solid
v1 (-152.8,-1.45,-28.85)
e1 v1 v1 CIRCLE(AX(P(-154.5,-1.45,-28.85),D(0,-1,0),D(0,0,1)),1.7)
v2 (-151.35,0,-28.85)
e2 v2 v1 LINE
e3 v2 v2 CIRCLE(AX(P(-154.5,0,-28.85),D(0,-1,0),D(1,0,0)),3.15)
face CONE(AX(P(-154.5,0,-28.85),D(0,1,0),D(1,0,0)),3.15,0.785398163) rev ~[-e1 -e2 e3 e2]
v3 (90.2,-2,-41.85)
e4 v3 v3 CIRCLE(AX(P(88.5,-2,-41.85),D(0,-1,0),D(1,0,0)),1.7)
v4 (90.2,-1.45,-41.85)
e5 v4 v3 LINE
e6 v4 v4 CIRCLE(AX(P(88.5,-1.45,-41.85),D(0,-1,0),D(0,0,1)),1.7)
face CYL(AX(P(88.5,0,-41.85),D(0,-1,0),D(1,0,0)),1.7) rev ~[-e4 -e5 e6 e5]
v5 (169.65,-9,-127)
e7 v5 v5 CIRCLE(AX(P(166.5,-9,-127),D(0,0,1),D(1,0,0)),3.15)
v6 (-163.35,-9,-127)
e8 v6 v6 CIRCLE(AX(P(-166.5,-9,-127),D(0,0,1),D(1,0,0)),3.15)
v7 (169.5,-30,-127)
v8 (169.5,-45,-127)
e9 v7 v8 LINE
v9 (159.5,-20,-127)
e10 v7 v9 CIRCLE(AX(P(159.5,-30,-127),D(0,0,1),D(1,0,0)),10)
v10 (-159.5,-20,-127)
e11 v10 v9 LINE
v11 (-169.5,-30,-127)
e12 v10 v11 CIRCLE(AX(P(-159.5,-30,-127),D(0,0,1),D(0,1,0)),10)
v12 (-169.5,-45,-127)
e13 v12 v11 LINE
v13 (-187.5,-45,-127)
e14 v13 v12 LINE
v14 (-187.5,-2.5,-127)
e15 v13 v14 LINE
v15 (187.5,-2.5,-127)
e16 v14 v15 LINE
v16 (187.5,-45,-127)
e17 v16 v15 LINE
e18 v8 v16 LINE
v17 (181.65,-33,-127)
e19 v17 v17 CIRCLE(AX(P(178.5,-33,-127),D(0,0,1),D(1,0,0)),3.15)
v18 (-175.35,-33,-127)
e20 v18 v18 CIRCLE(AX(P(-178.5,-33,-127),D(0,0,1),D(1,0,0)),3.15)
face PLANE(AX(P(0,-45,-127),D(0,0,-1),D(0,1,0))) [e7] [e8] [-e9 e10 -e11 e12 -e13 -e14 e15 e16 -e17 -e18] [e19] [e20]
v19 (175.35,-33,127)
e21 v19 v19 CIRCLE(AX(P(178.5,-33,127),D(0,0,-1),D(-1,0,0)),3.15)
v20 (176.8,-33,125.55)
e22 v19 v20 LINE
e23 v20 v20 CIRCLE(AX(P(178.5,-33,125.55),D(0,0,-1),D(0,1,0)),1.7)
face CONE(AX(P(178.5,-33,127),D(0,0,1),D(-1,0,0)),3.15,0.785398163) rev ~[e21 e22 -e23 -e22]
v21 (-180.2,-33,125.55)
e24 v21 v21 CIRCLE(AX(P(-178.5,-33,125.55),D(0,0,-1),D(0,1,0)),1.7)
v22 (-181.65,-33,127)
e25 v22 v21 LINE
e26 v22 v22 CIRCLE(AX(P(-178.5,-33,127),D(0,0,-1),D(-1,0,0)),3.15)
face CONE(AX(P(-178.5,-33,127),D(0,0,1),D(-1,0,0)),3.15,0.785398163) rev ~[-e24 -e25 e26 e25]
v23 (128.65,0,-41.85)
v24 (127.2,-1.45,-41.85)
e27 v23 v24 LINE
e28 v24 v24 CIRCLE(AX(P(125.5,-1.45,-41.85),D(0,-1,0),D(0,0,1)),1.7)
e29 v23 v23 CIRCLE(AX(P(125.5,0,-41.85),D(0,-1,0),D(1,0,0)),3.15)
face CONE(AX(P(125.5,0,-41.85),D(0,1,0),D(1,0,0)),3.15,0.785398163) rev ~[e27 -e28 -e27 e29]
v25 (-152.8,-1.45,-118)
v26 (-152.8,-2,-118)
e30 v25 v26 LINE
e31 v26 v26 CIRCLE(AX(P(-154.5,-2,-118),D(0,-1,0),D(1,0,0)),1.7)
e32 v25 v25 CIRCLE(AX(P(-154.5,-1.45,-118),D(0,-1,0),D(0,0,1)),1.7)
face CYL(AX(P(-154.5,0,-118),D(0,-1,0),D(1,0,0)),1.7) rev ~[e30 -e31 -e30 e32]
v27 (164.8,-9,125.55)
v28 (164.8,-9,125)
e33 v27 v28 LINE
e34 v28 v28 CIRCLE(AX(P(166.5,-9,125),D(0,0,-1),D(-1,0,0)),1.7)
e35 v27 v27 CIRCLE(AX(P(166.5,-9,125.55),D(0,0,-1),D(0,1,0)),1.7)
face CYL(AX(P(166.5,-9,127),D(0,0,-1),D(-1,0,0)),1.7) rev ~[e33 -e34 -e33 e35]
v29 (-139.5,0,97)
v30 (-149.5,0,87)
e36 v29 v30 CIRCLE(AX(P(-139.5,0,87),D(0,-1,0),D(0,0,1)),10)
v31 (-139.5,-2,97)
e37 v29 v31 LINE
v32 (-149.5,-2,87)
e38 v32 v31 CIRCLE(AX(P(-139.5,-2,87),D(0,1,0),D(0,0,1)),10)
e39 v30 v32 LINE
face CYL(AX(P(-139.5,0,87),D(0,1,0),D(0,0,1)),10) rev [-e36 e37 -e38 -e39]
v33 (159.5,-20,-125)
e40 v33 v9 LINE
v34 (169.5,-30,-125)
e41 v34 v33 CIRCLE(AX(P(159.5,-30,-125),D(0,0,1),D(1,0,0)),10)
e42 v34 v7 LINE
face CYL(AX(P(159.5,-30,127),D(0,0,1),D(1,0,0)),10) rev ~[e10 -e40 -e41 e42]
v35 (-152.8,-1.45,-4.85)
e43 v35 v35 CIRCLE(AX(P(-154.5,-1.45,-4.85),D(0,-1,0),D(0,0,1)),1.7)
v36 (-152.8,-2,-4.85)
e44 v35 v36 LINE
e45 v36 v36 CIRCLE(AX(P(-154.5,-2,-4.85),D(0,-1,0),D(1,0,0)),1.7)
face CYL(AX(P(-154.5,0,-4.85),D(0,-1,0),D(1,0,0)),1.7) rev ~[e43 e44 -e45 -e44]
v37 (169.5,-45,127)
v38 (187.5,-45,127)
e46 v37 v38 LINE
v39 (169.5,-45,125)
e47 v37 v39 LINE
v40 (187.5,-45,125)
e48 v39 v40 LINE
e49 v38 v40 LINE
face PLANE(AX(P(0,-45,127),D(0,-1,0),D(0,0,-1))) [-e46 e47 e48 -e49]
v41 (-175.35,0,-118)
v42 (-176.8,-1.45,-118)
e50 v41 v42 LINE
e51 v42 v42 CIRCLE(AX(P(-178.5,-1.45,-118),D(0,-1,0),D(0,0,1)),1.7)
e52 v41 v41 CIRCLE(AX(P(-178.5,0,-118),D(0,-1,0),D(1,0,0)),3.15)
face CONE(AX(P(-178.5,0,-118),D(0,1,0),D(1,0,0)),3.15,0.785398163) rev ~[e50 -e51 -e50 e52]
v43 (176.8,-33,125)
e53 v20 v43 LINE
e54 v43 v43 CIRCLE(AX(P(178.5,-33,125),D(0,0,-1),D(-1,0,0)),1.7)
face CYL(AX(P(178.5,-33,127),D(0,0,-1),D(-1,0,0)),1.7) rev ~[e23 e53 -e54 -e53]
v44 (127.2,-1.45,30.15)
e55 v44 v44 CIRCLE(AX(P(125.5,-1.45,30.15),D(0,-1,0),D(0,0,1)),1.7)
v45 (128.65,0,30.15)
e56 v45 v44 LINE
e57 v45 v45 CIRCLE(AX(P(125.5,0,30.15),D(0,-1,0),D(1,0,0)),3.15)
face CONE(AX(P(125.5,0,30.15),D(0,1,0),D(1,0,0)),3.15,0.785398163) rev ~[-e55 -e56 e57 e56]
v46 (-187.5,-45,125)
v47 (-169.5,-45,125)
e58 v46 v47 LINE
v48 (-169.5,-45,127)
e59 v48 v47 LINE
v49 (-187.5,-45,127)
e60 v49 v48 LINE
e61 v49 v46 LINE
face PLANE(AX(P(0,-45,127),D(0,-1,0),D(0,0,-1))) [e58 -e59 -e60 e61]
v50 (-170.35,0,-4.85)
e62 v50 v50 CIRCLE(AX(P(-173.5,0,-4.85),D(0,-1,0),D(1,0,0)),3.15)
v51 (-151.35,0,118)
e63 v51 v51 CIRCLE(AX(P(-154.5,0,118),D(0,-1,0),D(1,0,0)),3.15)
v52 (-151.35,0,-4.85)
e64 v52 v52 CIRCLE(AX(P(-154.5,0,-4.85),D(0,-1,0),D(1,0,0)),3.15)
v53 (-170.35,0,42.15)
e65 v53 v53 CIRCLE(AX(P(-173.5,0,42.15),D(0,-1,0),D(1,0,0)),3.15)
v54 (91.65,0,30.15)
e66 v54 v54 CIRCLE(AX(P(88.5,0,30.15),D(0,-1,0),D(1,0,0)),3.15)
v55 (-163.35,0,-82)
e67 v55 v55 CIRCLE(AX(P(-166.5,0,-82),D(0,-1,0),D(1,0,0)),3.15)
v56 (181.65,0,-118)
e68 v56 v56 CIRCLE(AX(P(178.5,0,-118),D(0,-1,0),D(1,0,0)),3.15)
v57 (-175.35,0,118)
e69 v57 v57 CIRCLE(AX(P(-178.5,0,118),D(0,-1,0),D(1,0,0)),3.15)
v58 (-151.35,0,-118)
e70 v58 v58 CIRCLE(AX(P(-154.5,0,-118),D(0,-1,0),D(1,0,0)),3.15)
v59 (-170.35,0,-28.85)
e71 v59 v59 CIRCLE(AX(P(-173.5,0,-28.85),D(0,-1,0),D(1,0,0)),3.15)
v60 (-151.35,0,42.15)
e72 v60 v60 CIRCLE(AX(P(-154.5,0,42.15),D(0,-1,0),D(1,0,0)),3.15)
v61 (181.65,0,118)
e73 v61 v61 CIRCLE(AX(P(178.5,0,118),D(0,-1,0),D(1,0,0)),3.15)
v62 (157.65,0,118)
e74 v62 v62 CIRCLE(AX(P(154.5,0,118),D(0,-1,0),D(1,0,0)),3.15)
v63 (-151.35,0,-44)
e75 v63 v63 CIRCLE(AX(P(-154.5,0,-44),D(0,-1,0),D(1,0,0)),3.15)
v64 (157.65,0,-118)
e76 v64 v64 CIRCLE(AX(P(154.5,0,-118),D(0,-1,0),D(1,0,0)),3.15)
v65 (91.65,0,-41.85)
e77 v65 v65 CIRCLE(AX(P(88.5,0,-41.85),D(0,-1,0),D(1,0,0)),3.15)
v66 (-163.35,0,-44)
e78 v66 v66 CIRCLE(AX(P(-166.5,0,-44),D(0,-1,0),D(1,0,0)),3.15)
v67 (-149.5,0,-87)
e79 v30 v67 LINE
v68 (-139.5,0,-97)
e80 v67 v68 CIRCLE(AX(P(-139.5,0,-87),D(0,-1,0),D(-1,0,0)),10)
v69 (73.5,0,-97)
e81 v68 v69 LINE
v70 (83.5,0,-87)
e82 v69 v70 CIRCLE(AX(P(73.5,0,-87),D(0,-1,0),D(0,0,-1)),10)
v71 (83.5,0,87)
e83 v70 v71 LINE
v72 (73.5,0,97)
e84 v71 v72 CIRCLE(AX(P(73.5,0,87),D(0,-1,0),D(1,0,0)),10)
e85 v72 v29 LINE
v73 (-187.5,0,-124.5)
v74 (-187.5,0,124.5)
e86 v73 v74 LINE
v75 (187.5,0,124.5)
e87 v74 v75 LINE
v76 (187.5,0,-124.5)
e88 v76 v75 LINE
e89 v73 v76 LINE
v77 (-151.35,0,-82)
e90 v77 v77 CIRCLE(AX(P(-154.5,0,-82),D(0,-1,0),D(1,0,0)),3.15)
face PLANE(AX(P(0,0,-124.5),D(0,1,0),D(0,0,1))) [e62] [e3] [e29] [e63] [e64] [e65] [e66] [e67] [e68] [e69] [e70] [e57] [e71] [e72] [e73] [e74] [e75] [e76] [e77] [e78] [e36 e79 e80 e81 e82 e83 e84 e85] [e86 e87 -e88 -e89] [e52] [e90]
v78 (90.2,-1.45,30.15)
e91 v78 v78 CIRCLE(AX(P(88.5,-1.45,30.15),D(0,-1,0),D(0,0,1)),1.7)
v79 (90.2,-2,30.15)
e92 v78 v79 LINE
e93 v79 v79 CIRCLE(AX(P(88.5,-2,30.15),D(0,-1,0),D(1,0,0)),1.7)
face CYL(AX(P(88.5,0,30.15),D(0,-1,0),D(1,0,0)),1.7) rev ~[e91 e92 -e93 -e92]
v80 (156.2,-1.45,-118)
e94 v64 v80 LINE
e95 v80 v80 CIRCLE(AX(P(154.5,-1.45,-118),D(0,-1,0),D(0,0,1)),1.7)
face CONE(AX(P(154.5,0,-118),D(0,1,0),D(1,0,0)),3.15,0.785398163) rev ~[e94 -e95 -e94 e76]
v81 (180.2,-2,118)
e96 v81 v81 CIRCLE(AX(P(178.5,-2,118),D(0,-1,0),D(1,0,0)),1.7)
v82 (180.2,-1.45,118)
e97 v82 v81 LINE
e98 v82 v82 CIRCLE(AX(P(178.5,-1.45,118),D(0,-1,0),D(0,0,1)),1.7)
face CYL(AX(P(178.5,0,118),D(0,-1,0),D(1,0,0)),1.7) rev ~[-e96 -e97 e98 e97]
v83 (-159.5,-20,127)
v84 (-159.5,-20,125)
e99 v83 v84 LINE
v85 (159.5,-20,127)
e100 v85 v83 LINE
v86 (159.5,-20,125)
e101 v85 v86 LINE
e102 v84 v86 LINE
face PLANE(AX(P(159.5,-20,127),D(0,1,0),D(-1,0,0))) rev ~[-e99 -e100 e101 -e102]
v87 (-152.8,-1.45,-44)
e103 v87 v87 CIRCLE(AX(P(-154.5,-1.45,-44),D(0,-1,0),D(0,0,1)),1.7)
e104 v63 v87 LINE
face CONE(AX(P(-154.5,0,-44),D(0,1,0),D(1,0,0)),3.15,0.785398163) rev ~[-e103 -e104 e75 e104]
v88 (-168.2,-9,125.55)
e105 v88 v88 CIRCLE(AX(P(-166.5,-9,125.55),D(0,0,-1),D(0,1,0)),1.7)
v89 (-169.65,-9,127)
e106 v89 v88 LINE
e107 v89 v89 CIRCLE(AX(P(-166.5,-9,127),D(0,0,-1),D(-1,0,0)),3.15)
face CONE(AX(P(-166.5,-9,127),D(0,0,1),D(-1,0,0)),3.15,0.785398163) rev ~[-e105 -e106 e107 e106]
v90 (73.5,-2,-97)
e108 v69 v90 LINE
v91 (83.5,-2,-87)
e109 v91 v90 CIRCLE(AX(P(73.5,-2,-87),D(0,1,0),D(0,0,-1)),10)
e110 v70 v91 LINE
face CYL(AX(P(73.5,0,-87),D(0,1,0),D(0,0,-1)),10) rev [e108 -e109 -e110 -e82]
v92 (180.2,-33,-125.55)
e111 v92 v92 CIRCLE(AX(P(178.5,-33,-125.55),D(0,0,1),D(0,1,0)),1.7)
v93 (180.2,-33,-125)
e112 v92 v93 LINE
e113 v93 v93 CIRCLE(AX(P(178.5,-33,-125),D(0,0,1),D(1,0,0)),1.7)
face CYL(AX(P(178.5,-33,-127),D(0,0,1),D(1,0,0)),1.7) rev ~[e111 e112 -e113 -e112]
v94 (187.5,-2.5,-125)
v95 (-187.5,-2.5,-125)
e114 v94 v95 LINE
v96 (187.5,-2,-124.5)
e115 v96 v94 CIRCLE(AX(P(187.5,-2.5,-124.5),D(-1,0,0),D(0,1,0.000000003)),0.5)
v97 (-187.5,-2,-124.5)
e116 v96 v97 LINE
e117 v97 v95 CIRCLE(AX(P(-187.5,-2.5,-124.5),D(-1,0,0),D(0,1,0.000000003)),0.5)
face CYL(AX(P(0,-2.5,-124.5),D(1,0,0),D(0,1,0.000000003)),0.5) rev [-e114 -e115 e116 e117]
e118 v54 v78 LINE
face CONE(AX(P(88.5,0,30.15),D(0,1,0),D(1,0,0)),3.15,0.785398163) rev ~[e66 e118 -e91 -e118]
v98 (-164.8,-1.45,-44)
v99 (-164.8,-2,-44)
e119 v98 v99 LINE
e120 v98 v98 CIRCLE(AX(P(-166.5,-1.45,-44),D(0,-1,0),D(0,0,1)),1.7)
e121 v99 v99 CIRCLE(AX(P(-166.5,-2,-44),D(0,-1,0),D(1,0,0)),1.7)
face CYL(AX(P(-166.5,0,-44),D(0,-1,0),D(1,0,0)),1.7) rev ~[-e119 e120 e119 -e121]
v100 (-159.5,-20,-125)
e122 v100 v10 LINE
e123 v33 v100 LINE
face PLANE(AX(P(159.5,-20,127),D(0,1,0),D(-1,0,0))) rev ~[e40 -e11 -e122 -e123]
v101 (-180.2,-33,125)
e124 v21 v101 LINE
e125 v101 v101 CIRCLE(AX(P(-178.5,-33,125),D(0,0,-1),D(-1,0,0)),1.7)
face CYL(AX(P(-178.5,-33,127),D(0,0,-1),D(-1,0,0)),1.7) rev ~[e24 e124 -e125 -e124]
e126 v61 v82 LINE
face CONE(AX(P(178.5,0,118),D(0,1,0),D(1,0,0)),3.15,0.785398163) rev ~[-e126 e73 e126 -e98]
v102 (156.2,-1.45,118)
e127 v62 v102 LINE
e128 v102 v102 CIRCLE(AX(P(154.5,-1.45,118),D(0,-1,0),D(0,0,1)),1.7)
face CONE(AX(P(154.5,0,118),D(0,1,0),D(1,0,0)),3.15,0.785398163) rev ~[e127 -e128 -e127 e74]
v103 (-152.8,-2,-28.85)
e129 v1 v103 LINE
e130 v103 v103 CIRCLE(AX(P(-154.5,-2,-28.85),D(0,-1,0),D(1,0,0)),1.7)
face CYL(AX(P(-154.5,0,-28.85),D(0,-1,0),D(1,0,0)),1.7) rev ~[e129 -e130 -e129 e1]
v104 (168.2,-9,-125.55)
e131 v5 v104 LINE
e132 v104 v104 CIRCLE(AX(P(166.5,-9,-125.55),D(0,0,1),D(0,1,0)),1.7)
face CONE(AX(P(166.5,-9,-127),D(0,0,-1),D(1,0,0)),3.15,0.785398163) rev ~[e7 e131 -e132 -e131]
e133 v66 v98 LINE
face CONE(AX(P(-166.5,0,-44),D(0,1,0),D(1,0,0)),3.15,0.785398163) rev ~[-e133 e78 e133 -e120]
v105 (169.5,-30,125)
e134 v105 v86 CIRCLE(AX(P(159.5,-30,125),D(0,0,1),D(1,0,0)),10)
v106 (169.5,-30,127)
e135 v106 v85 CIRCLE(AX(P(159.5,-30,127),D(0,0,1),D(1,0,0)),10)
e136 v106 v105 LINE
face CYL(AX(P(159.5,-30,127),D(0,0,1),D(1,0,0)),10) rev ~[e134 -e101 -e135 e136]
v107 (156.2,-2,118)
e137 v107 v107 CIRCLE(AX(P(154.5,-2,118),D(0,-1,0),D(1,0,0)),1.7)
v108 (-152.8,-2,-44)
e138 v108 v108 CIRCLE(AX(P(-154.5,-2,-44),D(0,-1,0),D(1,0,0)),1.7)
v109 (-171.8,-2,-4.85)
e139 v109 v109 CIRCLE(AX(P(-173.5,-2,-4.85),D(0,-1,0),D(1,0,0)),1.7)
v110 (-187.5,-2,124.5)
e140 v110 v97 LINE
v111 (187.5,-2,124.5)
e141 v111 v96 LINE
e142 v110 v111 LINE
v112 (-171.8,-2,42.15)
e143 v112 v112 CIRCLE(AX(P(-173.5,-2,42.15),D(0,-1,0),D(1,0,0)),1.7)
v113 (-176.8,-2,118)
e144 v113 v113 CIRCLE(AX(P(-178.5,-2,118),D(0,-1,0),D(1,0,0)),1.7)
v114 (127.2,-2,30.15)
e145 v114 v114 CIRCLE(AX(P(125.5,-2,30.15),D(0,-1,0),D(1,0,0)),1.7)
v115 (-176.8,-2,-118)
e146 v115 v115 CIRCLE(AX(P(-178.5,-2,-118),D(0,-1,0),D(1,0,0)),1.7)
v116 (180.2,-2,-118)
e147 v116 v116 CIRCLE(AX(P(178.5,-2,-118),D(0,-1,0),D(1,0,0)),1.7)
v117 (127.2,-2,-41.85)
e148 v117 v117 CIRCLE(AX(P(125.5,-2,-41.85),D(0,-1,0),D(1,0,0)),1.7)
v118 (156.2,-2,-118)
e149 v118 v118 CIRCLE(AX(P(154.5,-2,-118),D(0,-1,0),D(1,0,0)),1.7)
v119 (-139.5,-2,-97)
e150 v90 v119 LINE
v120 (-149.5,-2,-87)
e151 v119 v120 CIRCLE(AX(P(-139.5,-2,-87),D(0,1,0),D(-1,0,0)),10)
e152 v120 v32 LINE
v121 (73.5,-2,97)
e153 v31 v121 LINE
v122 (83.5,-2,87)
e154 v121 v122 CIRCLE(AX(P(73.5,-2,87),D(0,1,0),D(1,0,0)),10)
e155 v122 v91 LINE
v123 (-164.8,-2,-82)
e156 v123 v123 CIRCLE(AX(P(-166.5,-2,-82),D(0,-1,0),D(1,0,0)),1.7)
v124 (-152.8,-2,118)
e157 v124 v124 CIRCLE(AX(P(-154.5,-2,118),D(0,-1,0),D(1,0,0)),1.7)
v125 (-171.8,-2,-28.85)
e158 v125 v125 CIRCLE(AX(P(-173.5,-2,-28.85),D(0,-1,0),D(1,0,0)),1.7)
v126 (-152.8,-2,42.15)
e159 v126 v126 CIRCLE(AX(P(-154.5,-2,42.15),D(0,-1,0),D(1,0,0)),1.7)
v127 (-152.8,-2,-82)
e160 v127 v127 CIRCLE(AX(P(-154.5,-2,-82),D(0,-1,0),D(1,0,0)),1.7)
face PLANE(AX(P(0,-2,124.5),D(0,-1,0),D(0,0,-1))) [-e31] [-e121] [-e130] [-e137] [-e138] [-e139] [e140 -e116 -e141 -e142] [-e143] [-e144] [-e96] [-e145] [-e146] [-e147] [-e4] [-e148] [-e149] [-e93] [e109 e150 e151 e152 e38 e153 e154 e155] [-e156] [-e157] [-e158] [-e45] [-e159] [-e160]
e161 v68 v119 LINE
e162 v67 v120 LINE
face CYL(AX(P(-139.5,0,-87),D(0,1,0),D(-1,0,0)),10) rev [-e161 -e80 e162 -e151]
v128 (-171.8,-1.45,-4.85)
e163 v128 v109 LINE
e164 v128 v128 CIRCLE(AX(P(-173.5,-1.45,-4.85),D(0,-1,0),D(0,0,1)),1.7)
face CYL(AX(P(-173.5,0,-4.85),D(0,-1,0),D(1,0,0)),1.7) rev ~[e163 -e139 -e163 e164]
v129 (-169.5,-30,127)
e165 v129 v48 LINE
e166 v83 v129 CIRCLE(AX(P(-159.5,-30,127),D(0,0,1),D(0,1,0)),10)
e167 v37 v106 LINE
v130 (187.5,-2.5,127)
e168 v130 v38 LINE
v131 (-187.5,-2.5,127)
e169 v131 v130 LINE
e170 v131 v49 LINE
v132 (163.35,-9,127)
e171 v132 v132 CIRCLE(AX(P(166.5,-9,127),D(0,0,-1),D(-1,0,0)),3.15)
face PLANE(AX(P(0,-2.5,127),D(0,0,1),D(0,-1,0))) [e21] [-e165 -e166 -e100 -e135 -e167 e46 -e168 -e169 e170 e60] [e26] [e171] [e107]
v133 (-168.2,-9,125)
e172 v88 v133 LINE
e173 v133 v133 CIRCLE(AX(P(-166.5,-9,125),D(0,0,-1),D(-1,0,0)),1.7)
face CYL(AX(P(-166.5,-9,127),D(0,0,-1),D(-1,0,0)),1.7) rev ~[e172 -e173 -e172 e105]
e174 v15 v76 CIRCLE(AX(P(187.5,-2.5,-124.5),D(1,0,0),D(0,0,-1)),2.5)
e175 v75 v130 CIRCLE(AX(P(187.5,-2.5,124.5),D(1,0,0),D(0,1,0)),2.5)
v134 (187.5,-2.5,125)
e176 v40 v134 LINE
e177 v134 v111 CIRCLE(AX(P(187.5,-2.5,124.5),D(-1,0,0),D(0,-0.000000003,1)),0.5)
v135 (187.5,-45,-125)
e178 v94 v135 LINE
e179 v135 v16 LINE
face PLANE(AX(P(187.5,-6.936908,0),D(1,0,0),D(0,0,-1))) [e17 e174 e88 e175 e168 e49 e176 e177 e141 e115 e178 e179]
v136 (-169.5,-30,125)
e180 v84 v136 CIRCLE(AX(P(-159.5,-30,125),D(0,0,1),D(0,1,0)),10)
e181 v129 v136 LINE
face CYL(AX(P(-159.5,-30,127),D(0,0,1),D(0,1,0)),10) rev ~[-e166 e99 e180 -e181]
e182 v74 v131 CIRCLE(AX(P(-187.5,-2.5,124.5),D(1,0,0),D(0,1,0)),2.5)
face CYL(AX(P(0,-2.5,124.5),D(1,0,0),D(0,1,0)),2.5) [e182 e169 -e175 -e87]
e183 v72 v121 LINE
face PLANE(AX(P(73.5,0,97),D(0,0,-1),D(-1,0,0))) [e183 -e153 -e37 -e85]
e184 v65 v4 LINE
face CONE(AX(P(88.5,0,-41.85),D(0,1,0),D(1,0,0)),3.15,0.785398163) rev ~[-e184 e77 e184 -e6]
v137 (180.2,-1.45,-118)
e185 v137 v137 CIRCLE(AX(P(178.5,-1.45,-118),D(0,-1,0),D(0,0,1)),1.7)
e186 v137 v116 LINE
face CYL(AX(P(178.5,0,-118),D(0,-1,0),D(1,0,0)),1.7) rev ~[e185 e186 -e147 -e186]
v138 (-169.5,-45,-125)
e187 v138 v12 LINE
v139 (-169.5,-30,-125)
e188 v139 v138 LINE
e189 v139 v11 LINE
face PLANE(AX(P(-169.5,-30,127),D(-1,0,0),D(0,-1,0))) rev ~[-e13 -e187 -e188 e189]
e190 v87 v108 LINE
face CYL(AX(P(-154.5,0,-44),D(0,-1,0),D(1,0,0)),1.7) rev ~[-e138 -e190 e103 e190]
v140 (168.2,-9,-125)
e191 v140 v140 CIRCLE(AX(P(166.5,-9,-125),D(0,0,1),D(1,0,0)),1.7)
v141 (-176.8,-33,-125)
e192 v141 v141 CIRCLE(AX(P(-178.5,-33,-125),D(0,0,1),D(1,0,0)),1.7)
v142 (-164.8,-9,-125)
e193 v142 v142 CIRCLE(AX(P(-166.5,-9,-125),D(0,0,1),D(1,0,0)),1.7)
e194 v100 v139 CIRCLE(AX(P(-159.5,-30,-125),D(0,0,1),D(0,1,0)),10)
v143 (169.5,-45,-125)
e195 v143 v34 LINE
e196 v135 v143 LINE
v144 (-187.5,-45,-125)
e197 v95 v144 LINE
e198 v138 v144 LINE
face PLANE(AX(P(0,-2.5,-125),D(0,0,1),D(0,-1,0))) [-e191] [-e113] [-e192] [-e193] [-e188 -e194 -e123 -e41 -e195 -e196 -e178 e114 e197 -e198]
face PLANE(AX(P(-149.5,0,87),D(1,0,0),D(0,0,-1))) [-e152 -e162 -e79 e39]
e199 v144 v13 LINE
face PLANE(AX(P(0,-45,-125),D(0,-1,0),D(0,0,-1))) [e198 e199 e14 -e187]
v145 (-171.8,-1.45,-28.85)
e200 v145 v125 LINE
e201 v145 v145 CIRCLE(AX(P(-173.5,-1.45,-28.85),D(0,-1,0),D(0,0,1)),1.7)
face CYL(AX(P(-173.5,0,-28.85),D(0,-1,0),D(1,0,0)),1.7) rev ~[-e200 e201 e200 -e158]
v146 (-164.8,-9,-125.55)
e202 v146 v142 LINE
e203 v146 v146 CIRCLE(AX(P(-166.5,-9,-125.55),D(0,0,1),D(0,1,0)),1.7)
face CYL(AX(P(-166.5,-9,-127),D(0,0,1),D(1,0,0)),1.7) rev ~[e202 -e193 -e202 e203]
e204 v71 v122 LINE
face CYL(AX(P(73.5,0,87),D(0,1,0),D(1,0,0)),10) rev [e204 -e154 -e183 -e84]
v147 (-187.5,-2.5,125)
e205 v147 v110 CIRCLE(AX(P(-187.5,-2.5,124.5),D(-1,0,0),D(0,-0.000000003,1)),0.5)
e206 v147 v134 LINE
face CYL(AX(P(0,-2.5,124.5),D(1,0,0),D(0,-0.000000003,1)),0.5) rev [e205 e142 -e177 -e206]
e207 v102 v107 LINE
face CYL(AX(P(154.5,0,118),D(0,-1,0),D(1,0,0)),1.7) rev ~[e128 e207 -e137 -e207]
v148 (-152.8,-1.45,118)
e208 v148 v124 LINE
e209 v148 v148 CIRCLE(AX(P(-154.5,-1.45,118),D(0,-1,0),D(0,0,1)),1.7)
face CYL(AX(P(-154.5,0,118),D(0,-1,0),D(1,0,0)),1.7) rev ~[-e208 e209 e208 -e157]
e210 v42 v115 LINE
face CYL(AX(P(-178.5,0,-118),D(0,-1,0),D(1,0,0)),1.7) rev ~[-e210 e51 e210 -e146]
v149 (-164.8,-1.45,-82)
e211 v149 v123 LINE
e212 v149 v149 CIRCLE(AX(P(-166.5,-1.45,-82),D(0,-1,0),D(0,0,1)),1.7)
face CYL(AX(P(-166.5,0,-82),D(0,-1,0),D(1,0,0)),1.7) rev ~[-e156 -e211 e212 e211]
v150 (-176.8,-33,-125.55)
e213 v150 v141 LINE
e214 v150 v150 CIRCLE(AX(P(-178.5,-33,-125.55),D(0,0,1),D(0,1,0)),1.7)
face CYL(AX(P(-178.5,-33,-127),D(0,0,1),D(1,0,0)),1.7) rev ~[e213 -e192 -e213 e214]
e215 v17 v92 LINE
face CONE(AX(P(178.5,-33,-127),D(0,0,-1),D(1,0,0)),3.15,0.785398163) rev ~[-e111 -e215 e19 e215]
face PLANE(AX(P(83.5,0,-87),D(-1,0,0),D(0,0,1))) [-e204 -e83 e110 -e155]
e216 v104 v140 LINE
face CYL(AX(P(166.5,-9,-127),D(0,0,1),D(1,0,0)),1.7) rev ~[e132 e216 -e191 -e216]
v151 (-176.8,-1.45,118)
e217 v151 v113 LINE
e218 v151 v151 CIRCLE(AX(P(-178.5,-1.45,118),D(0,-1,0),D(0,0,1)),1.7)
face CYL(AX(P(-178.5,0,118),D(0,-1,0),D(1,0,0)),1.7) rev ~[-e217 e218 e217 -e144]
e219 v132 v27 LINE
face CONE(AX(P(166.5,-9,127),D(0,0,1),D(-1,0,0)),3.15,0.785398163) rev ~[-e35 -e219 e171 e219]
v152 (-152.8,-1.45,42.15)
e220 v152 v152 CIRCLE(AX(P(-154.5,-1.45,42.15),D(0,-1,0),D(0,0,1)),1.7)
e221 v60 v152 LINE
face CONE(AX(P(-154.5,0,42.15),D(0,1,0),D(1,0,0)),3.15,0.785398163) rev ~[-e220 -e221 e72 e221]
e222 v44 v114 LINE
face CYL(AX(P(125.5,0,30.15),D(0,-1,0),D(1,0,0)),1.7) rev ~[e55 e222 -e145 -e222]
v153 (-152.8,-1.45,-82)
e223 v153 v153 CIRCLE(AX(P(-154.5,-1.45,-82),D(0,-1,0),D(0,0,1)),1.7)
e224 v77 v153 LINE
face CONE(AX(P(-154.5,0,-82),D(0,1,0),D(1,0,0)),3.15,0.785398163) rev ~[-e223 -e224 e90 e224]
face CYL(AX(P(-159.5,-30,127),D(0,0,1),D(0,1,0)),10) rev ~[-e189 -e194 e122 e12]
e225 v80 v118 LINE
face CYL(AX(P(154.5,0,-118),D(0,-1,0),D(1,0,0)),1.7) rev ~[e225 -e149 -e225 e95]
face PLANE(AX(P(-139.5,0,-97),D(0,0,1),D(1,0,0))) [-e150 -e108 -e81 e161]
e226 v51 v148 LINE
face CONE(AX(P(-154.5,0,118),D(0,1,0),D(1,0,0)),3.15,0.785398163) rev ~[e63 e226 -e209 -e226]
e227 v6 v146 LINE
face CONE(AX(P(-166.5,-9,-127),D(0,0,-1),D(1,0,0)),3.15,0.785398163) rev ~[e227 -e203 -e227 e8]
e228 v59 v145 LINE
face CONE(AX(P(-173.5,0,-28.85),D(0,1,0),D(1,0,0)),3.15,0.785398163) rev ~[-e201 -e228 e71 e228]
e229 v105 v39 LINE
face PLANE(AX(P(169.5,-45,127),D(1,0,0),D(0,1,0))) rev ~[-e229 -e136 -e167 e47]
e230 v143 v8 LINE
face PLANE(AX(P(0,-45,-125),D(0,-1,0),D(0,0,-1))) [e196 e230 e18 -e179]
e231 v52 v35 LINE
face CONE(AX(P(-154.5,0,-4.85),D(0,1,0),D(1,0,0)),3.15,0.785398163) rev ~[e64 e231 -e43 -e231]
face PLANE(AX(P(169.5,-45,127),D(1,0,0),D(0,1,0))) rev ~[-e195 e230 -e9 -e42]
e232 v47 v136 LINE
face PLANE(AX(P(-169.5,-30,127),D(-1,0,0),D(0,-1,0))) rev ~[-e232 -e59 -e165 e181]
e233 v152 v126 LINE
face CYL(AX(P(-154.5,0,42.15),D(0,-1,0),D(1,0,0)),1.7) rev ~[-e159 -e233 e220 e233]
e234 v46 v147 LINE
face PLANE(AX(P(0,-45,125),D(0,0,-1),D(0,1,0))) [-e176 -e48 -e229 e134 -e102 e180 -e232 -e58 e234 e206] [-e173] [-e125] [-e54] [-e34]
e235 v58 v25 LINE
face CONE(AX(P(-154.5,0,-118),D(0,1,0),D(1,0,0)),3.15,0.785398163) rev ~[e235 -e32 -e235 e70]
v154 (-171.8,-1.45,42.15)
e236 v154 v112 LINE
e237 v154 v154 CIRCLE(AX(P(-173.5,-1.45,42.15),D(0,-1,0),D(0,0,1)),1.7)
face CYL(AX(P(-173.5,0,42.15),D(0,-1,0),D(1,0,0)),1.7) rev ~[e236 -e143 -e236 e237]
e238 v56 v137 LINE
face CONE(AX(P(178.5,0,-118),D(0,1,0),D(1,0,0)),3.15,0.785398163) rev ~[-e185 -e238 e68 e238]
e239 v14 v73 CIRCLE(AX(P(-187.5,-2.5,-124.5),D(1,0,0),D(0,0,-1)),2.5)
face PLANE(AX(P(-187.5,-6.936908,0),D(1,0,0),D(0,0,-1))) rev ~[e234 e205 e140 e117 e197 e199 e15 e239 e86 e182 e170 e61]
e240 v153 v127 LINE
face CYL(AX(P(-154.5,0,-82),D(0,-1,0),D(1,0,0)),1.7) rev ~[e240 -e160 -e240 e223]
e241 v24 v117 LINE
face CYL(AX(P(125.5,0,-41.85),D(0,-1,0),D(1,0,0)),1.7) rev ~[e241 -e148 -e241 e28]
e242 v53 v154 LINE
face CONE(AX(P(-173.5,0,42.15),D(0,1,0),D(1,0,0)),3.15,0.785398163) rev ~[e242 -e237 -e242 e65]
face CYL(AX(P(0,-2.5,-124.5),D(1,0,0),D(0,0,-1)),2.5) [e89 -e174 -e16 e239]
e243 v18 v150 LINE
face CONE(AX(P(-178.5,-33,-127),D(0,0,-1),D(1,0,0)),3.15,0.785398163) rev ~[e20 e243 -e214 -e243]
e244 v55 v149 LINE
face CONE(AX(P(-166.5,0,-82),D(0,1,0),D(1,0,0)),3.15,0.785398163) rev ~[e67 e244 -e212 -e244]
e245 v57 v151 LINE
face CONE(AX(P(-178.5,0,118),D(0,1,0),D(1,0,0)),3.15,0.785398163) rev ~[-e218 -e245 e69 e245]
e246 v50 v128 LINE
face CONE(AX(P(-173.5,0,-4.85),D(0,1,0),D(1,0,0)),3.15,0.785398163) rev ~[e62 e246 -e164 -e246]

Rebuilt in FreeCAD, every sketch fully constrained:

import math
import FreeCAD as App
import Part
import Sketcher

doc = App.newDocument("Part")
body = doc.addObject("PartDesign::Body", "Body")

# Sketch on YZ plane
sketch1 = body.newObject("Sketcher::SketchObject", "Sketch")
sketch1.AttachmentSupport = (doc.getObject("YZ_Plane"), [""])
sketch1.MapMode = "FlatFace"
sketch1.addGeometry([
    Part.LineSegment(App.Vector(-45, -125, 0), App.Vector(-45, -127, 0)),  # 0
    Part.LineSegment(App.Vector(-45, -127, 0), App.Vector(-2.5, -127, 0)),  # 1
    Part.ArcOfCircle(Part.Circle(App.Vector(-2.5, -124.5, 0), App.Vector(0, 0, 1), 2.5), math.radians(-90), math.radians(0)),  # 2
    Part.LineSegment(App.Vector(0, -124.5, 0), App.Vector(0, 124.5, 0)),  # 3
    Part.ArcOfCircle(Part.Circle(App.Vector(-2.5, 124.5, 0), App.Vector(0, 0, 1), 2.5), math.radians(0), math.radians(90)),  # 4
    Part.LineSegment(App.Vector(-2.5, 127, 0), App.Vector(-45, 127, 0)),  # 5
    Part.LineSegment(App.Vector(-45, 127, 0), App.Vector(-45, 125, 0)),  # 6
    Part.LineSegment(App.Vector(-45, 125, 0), App.Vector(-2.5, 125, 0)),  # 7
    Part.ArcOfCircle(Part.Circle(App.Vector(-2.5, 124.5, 0), App.Vector(0, 0, 1), 0.5), math.radians(0), math.radians(90)),  # 8
    Part.LineSegment(App.Vector(-2, 124.5, 0), App.Vector(-2, -124.5, 0)),  # 9
    Part.ArcOfCircle(Part.Circle(App.Vector(-2.5, -124.5, 0), App.Vector(0, 0, 1), 0.5), math.radians(-90), math.radians(0)),  # 10
    Part.LineSegment(App.Vector(-2.5, -125, 0), App.Vector(-45, -125, 0)),  # 11
], False)
sketch1.addConstraint([
    Sketcher.Constraint("Coincident", 0, 2, 1, 1),
    Sketcher.Constraint("Tangent", 1, 2, 2, 1),
    Sketcher.Constraint("Tangent", 2, 2, 3, 1),
    Sketcher.Constraint("Tangent", 3, 2, 4, 1),
    Sketcher.Constraint("Tangent", 4, 2, 5, 1),
    Sketcher.Constraint("Coincident", 5, 2, 6, 1),
    Sketcher.Constraint("Coincident", 6, 2, 7, 1),
    Sketcher.Constraint("Tangent", 7, 2, 8, 2),
    Sketcher.Constraint("Tangent", 8, 1, 9, 1),
    Sketcher.Constraint("Tangent", 9, 2, 10, 2),
    Sketcher.Constraint("Tangent", 10, 1, 11, 1),
    Sketcher.Constraint("Coincident", 11, 2, 0, 1),
    Sketcher.Constraint("Vertical", 0),
    Sketcher.Constraint("Horizontal", 1),
    Sketcher.Constraint("Vertical", 3),
    Sketcher.Constraint("Horizontal", 5),
    Sketcher.Constraint("Vertical", 6),
    Sketcher.Constraint("Horizontal", 7),
    Sketcher.Constraint("Vertical", 9),
    Sketcher.Constraint("Horizontal", 11),
    Sketcher.Constraint("Coincident", 8, 3, 4, 3),
    Sketcher.Constraint("Coincident", 10, 3, 2, 3),
    Sketcher.Constraint("Equal", 2, 4),
    Sketcher.Constraint("Symmetric", 2, 2, 3, 2, -1, 1),
    Sketcher.Constraint("Vertical", 0, 2, 5, 2),
    Sketcher.Constraint("Radius", 2, 2.5),
    Sketcher.Constraint("Radius", 8, 0.5),
    Sketcher.Constraint("DistanceY", 3, 1, 3, 2, 249.0),
    Sketcher.Constraint("DistanceX", 1, 1, 1, 2, 42.5),
])
pad1 = body.newObject("PartDesign::Pad", "Pad")
pad1.Profile = sketch1
pad1.Length = 375
pad1.Midplane = True

# Sketch on XY plane
sketch2 = body.newObject("Sketcher::SketchObject", "Sketch001")
sketch2.AttachmentSupport = (doc.getObject("XY_Plane"), [""])
sketch2.MapMode = "FlatFace"
sketch2.AttachmentOffset = App.Placement(App.Vector(0, 0, 127), App.Rotation())
sketch2.addGeometry([
    Part.LineSegment(App.Vector(-169.5, -45, 0), App.Vector(169.5, -45, 0)),  # 0
    Part.LineSegment(App.Vector(169.5, -45, 0), App.Vector(169.5, -30, 0)),  # 1
    Part.ArcOfCircle(Part.Circle(App.Vector(159.5, -30, 0), App.Vector(0, 0, 1), 10), math.radians(0), math.radians(90)),  # 2
    Part.LineSegment(App.Vector(159.5, -20, 0), App.Vector(-159.5, -20, 0)),  # 3
    Part.ArcOfCircle(Part.Circle(App.Vector(-159.5, -30, 0), App.Vector(0, 0, 1), 10), math.radians(90), math.radians(180)),  # 4
    Part.LineSegment(App.Vector(-169.5, -30, 0), App.Vector(-169.5, -45, 0)),  # 5
], False)
sketch2.addConstraint([
    Sketcher.Constraint("Coincident", 0, 2, 1, 1),
    Sketcher.Constraint("Tangent", 1, 2, 2, 1),
    Sketcher.Constraint("Tangent", 2, 2, 3, 1),
    Sketcher.Constraint("Tangent", 3, 2, 4, 1),
    Sketcher.Constraint("Tangent", 4, 2, 5, 1),
    Sketcher.Constraint("Coincident", 5, 2, 0, 1),
    Sketcher.Constraint("Horizontal", 0),
    Sketcher.Constraint("Vertical", 1),
    Sketcher.Constraint("Horizontal", 3),
    Sketcher.Constraint("Vertical", 5),
    Sketcher.Constraint("Equal", 2, 4),
    Sketcher.Constraint("Radius", 2, 10.0),
    Sketcher.Constraint("DistanceX", 0, 1, 0, 2, 339.0),
    Sketcher.Constraint("DistanceY", 1, 1, 1, 2, 15.0),
    Sketcher.Constraint("DistanceY", 2, 3, -1, 1, 30.0),
    Sketcher.Constraint("DistanceX", -1, 1, 2, 3, 159.5),
])
pocket1 = body.newObject("PartDesign::Pocket", "Pocket")
pocket1.Profile = sketch2
pocket1.Type = "ThroughAll"

# Sketch on XZ plane
sketch3 = body.newObject("Sketcher::SketchObject", "Sketch002")
sketch3.AttachmentSupport = (doc.getObject("XZ_Plane"), [""])
sketch3.MapMode = "FlatFace"
sketch3.addGeometry([
    Part.LineSegment(App.Vector(73.5, -97, 0), App.Vector(-139.5, -97, 0)),  # 0
    Part.ArcOfCircle(Part.Circle(App.Vector(-139.5, -87, 0), App.Vector(0, 0, 1), 10), math.radians(180), math.radians(270)),  # 1
    Part.LineSegment(App.Vector(-149.5, -87, 0), App.Vector(-149.5, 87, 0)),  # 2
    Part.ArcOfCircle(Part.Circle(App.Vector(-139.5, 87, 0), App.Vector(0, 0, 1), 10), math.radians(90), math.radians(180)),  # 3
    Part.LineSegment(App.Vector(-139.5, 97, 0), App.Vector(73.5, 97, 0)),  # 4
    Part.ArcOfCircle(Part.Circle(App.Vector(73.5, 87, 0), App.Vector(0, 0, 1), 10), math.radians(0), math.radians(90)),  # 5
    Part.LineSegment(App.Vector(83.5, 87, 0), App.Vector(83.5, -87, 0)),  # 6
    Part.ArcOfCircle(Part.Circle(App.Vector(73.5, -87, 0), App.Vector(0, 0, 1), 10), math.radians(-90), math.radians(0)),  # 7
], False)
sketch3.addConstraint([
    Sketcher.Constraint("Tangent", 0, 2, 1, 2),
    Sketcher.Constraint("Tangent", 1, 1, 2, 1),
    Sketcher.Constraint("Tangent", 2, 2, 3, 2),
    Sketcher.Constraint("Tangent", 3, 1, 4, 1),
    Sketcher.Constraint("Tangent", 4, 2, 5, 2),
    Sketcher.Constraint("Tangent", 5, 1, 6, 1),
    Sketcher.Constraint("Tangent", 6, 2, 7, 2),
    Sketcher.Constraint("Tangent", 7, 1, 0, 1),
    Sketcher.Constraint("Horizontal", 0),
    Sketcher.Constraint("Vertical", 2),
    Sketcher.Constraint("Horizontal", 4),
    Sketcher.Constraint("Vertical", 6),
    Sketcher.Constraint("Equal", 1, 3),
    Sketcher.Constraint("Equal", 3, 5),
    Sketcher.Constraint("Equal", 5, 7),
    Sketcher.Constraint("Radius", 1, 10.0),
    Sketcher.Constraint("DistanceX", 0, 2, 0, 1, 213.0),
    Sketcher.Constraint("DistanceY", 2, 1, 2, 2, 174.0),
    Sketcher.Constraint("DistanceY", 1, 3, -1, 1, 87.0),
    Sketcher.Constraint("DistanceX", 1, 3, -1, 1, 139.5),
])
pocket2 = body.newObject("PartDesign::Pocket", "Pocket001")
pocket2.Profile = sketch3
pocket2.Length = 10
pocket2.Reversed = True

# Sketch on XY plane
sketch4 = body.newObject("Sketcher::SketchObject", "Sketch003")
sketch4.AttachmentSupport = (doc.getObject("XY_Plane"), [""])
sketch4.MapMode = "FlatFace"
sketch4.AttachmentOffset = App.Placement(App.Vector(0, 0, 127), App.Rotation())
sketch4.addGeometry([
    Part.Circle(App.Vector(-178.5, -33, 0), App.Vector(0, 0, 1), 1.5),
    Part.Circle(App.Vector(-166.5, -9, 0), App.Vector(0, 0, 1), 1.5),
    Part.Circle(App.Vector(166.5, -9, 0), App.Vector(0, 0, 1), 1.5),
    Part.Circle(App.Vector(178.5, -33, 0), App.Vector(0, 0, 1), 1.5),
], False)
sketch4.addConstraint([
    Sketcher.Constraint("Equal", 0, 1),
    Sketcher.Constraint("Equal", 1, 2),
    Sketcher.Constraint("Equal", 2, 3),
    Sketcher.Constraint("Symmetric", 1, 3, 2, 3, -2),
    Sketcher.Constraint("Symmetric", 0, 3, 3, 3, -2),
    Sketcher.Constraint("Diameter", 0, 3.0),
    Sketcher.Constraint("DistanceY", 0, 3, -1, 1, 33.0),
    Sketcher.Constraint("DistanceY", 1, 3, -1, 1, 9.0),
    Sketcher.Constraint("DistanceX", 0, 3, 1, 3, 12.0),
    Sketcher.Constraint("DistanceX", 1, 3, 2, 3, 333.0),
])
pocket3 = body.newObject("PartDesign::Pocket", "Pocket002")
pocket3.Profile = sketch4
pocket3.Type = "ThroughAll"

# Sketch on XZ plane
sketch5 = body.newObject("Sketcher::SketchObject", "Sketch004")
sketch5.AttachmentSupport = (doc.getObject("XZ_Plane"), [""])
sketch5.MapMode = "FlatFace"
sketch5.addGeometry([
    Part.Circle(App.Vector(-178.5, -118, 0), App.Vector(0, 0, 1), 1.5),  # 0
    Part.Circle(App.Vector(-154.5, -118, 0), App.Vector(0, 0, 1), 1.5),  # 1
    Part.Circle(App.Vector(154.5, -118, 0), App.Vector(0, 0, 1), 1.5),  # 2
    Part.Circle(App.Vector(178.5, -118, 0), App.Vector(0, 0, 1), 1.5),  # 3
    Part.Circle(App.Vector(178.5, 118, 0), App.Vector(0, 0, 1), 1.5),  # 4
    Part.Circle(App.Vector(154.5, 118, 0), App.Vector(0, 0, 1), 1.5),  # 5
    Part.Circle(App.Vector(-178.5, 118, 0), App.Vector(0, 0, 1), 1.5),  # 6
    Part.Circle(App.Vector(-154.5, 118, 0), App.Vector(0, 0, 1), 1.5),  # 7
    Part.Circle(App.Vector(88.5, -41.85, 0), App.Vector(0, 0, 1), 1.5),  # 8
    Part.Circle(App.Vector(88.5, 30.15, 0), App.Vector(0, 0, 1), 1.5),  # 9
    Part.Circle(App.Vector(125.5, -41.85, 0), App.Vector(0, 0, 1), 1.5),  # 10
    Part.Circle(App.Vector(125.5, 30.15, 0), App.Vector(0, 0, 1), 1.5),  # 11
    Part.Circle(App.Vector(-154.5, -28.85, 0), App.Vector(0, 0, 1), 1.5),  # 12
    Part.Circle(App.Vector(-173.5, -28.85, 0), App.Vector(0, 0, 1), 1.5),  # 13
    Part.Circle(App.Vector(-173.5, -4.85, 0), App.Vector(0, 0, 1), 1.5),  # 14
    Part.Circle(App.Vector(-154.5, -4.85, 0), App.Vector(0, 0, 1), 1.5),  # 15
    Part.Circle(App.Vector(-154.5, 42.15, 0), App.Vector(0, 0, 1), 1.5),  # 16
    Part.Circle(App.Vector(-173.5, 42.15, 0), App.Vector(0, 0, 1), 1.5),  # 17
    Part.Circle(App.Vector(-166.5, -82, 0), App.Vector(0, 0, 1), 1.5),  # 18
    Part.Circle(App.Vector(-154.5, -82, 0), App.Vector(0, 0, 1), 1.5),  # 19
    Part.Circle(App.Vector(-166.5, -44, 0), App.Vector(0, 0, 1), 1.5),  # 20
    Part.Circle(App.Vector(-154.5, -44, 0), App.Vector(0, 0, 1), 1.5),  # 21
], False)
sketch5.addConstraint([
    Sketcher.Constraint("Equal", 0, 1),
    Sketcher.Constraint("Equal", 1, 2),
    Sketcher.Constraint("Equal", 2, 3),
    Sketcher.Constraint("Equal", 3, 4),
    Sketcher.Constraint("Equal", 4, 5),
    Sketcher.Constraint("Equal", 5, 6),
    Sketcher.Constraint("Equal", 6, 7),
    Sketcher.Constraint("Equal", 7, 8),
    Sketcher.Constraint("Equal", 8, 9),
    Sketcher.Constraint("Equal", 9, 10),
    Sketcher.Constraint("Equal", 10, 11),
    Sketcher.Constraint("Equal", 11, 12),
    Sketcher.Constraint("Equal", 12, 13),
    Sketcher.Constraint("Equal", 13, 14),
    Sketcher.Constraint("Equal", 14, 15),
    Sketcher.Constraint("Equal", 15, 16),
    Sketcher.Constraint("Equal", 16, 17),
    Sketcher.Constraint("Equal", 17, 18),
    Sketcher.Constraint("Equal", 18, 19),
    Sketcher.Constraint("Equal", 19, 20),
    Sketcher.Constraint("Equal", 20, 21),
    Sketcher.Constraint("Symmetric", 0, 3, 4, 3, -1, 1),
    Sketcher.Constraint("Symmetric", 1, 3, 5, 3, -1, 1),
    Sketcher.Constraint("Symmetric", 3, 3, 6, 3, -1, 1),
    Sketcher.Constraint("Symmetric", 2, 3, 7, 3, -1, 1),
    Sketcher.Constraint("Symmetric", 1, 3, 2, 3, -2),
    Sketcher.Constraint("Symmetric", 0, 3, 3, 3, -2),
    Sketcher.Constraint("Horizontal", 0, 3, 1, 3),
    Sketcher.Constraint("Horizontal", 8, 3, 10, 3),
    Sketcher.Constraint("Horizontal", 9, 3, 11, 3),
    Sketcher.Constraint("Horizontal", 12, 3, 13, 3),
    Sketcher.Constraint("Horizontal", 14, 3, 15, 3),
    Sketcher.Constraint("Horizontal", 16, 3, 17, 3),
    Sketcher.Constraint("Horizontal", 18, 3, 19, 3),
    Sketcher.Constraint("Horizontal", 20, 3, 21, 3),
    Sketcher.Constraint("Vertical", 8, 3, 9, 3),
    Sketcher.Constraint("Vertical", 10, 3, 11, 3),
    Sketcher.Constraint("Vertical", 7, 3, 12, 3),
    Sketcher.Constraint("Vertical", 13, 3, 14, 3),
    Sketcher.Constraint("Vertical", 12, 3, 15, 3),
    Sketcher.Constraint("Vertical", 15, 3, 16, 3),
    Sketcher.Constraint("Vertical", 14, 3, 17, 3),
    Sketcher.Constraint("Vertical", 16, 3, 19, 3),
    Sketcher.Constraint("Vertical", 18, 3, 20, 3),
    Sketcher.Constraint("Vertical", 19, 3, 21, 3),
    Sketcher.Constraint("Diameter", 0, 3.0),
    Sketcher.Constraint("DistanceY", 0, 3, -1, 1, 118.0),
    Sketcher.Constraint("DistanceY", 18, 3, -1, 1, 82.0),
    Sketcher.Constraint("DistanceY", 20, 3, -1, 1, 44.0),
    Sketcher.Constraint("DistanceX", 0, 3, 1, 3, 24.0),
    Sketcher.Constraint("DistanceX", 1, 3, 2, 3, 309.0),
    Sketcher.Constraint("DistanceX", 8, 3, 2, 3, 66.0),
    Sketcher.Constraint("DistanceY", 8, 3, 9, 3, 72.0),
    Sketcher.Constraint("DistanceX", 8, 3, 10, 3, 37.0),
    Sketcher.Constraint("DistanceY", 8, 3, 12, 3, 13.0),
    Sketcher.Constraint("DistanceX", 13, 3, 12, 3, 19.0),
    Sketcher.Constraint("DistanceY", 13, 3, 14, 3, 24.0),
    Sketcher.Constraint("DistanceY", 15, 3, 16, 3, 47.0),
    Sketcher.Constraint("DistanceX", 0, 3, 18, 3, 12.0),
    Sketcher.Constraint("DistanceY", 8, 3, -1, 1, 41.85),
])
pocket4 = body.newObject("PartDesign::Pocket", "Pocket003")
pocket4.Profile = sketch5
pocket4.Length = 10
pocket4.Reversed = True

# Sketch on XZ plane
sketch6 = body.newObject("Sketcher::SketchObject", "Sketch005")
sketch6.AttachmentSupport = (doc.getObject("XZ_Plane"), [""])
sketch6.MapMode = "FlatFace"
sketch6.addGeometry([
    Part.Circle(App.Vector(-154.5, 118, 0), App.Vector(0, 0, 1), 1.7),  # 0
    Part.Circle(App.Vector(-178.5, 118, 0), App.Vector(0, 0, 1), 1.7),  # 1
    Part.Circle(App.Vector(-154.5, 42.15, 0), App.Vector(0, 0, 1), 1.7),  # 2
    Part.Circle(App.Vector(-173.5, 42.15, 0), App.Vector(0, 0, 1), 1.7),  # 3
    Part.Circle(App.Vector(-154.5, -4.85, 0), App.Vector(0, 0, 1), 1.7),  # 4
    Part.Circle(App.Vector(-173.5, -4.85, 0), App.Vector(0, 0, 1), 1.7),  # 5
    Part.Circle(App.Vector(-173.5, -28.85, 0), App.Vector(0, 0, 1), 1.7),  # 6
    Part.Circle(App.Vector(-154.5, -28.85, 0), App.Vector(0, 0, 1), 1.7),  # 7
    Part.Circle(App.Vector(-154.5, -44, 0), App.Vector(0, 0, 1), 1.7),  # 8
    Part.Circle(App.Vector(-166.5, -44, 0), App.Vector(0, 0, 1), 1.7),  # 9
    Part.Circle(App.Vector(-166.5, -82, 0), App.Vector(0, 0, 1), 1.7),  # 10
    Part.Circle(App.Vector(-154.5, -82, 0), App.Vector(0, 0, 1), 1.7),  # 11
    Part.Circle(App.Vector(-178.5, -118, 0), App.Vector(0, 0, 1), 1.7),  # 12
    Part.Circle(App.Vector(-154.5, -118, 0), App.Vector(0, 0, 1), 1.7),  # 13
    Part.Circle(App.Vector(154.5, -118, 0), App.Vector(0, 0, 1), 1.7),  # 14
    Part.Circle(App.Vector(178.5, -118, 0), App.Vector(0, 0, 1), 1.7),  # 15
    Part.Circle(App.Vector(125.5, -41.85, 0), App.Vector(0, 0, 1), 1.7),  # 16
    Part.Circle(App.Vector(88.5, -41.85, 0), App.Vector(0, 0, 1), 1.7),  # 17
    Part.Circle(App.Vector(125.5, 30.15, 0), App.Vector(0, 0, 1), 1.7),  # 18
    Part.Circle(App.Vector(88.5, 30.15, 0), App.Vector(0, 0, 1), 1.7),  # 19
    Part.Circle(App.Vector(178.5, 118, 0), App.Vector(0, 0, 1), 1.7),  # 20
    Part.Circle(App.Vector(154.5, 118, 0), App.Vector(0, 0, 1), 1.7),  # 21
], False)
sketch6.addConstraint([
    Sketcher.Constraint("Equal", 0, 1),
    Sketcher.Constraint("Equal", 1, 2),
    Sketcher.Constraint("Equal", 2, 3),
    Sketcher.Constraint("Equal", 3, 4),
    Sketcher.Constraint("Equal", 4, 5),
    Sketcher.Constraint("Equal", 5, 6),
    Sketcher.Constraint("Equal", 6, 7),
    Sketcher.Constraint("Equal", 7, 8),
    Sketcher.Constraint("Equal", 8, 9),
    Sketcher.Constraint("Equal", 9, 10),
    Sketcher.Constraint("Equal", 10, 11),
    Sketcher.Constraint("Equal", 11, 12),
    Sketcher.Constraint("Equal", 12, 13),
    Sketcher.Constraint("Equal", 13, 14),
    Sketcher.Constraint("Equal", 14, 15),
    Sketcher.Constraint("Equal", 15, 16),
    Sketcher.Constraint("Equal", 16, 17),
    Sketcher.Constraint("Equal", 17, 18),
    Sketcher.Constraint("Equal", 18, 19),
    Sketcher.Constraint("Equal", 19, 20),
    Sketcher.Constraint("Equal", 20, 21),
    Sketcher.Constraint("Symmetric", 0, 3, 14, 3, -1, 1),
    Sketcher.Constraint("Symmetric", 1, 3, 15, 3, -1, 1),
    Sketcher.Constraint("Symmetric", 12, 3, 20, 3, -1, 1),
    Sketcher.Constraint("Symmetric", 13, 3, 21, 3, -1, 1),
    Sketcher.Constraint("Symmetric", 13, 3, 14, 3, -2),
    Sketcher.Constraint("Symmetric", 12, 3, 15, 3, -2),
    Sketcher.Constraint("Horizontal", 0, 3, 1, 3),
    Sketcher.Constraint("Horizontal", 2, 3, 3, 3),
    Sketcher.Constraint("Horizontal", 4, 3, 5, 3),
    Sketcher.Constraint("Horizontal", 6, 3, 7, 3),
    Sketcher.Constraint("Horizontal", 8, 3, 9, 3),
    Sketcher.Constraint("Horizontal", 10, 3, 11, 3),
    Sketcher.Constraint("Horizontal", 16, 3, 17, 3),
    Sketcher.Constraint("Horizontal", 18, 3, 19, 3),
    Sketcher.Constraint("Vertical", 0, 3, 2, 3),
    Sketcher.Constraint("Vertical", 2, 3, 4, 3),
    Sketcher.Constraint("Vertical", 3, 3, 5, 3),
    Sketcher.Constraint("Vertical", 5, 3, 6, 3),
    Sketcher.Constraint("Vertical", 4, 3, 7, 3),
    Sketcher.Constraint("Vertical", 7, 3, 8, 3),
    Sketcher.Constraint("Vertical", 9, 3, 10, 3),
    Sketcher.Constraint("Vertical", 8, 3, 11, 3),
    Sketcher.Constraint("Vertical", 16, 3, 18, 3),
    Sketcher.Constraint("Vertical", 17, 3, 19, 3),
    Sketcher.Constraint("Diameter", 0, 3.4),
    Sketcher.Constraint("DistanceY", -1, 1, 0, 3, 118.0),
    Sketcher.Constraint("DistanceY", 8, 3, -1, 1, 44.0),
    Sketcher.Constraint("DistanceY", 10, 3, -1, 1, 82.0),
    Sketcher.Constraint("DistanceX", 1, 3, 0, 3, 24.0),
    Sketcher.Constraint("DistanceX", 3, 3, 2, 3, 19.0),
    Sketcher.Constraint("DistanceY", 4, 3, 2, 3, 47.0),
    Sketcher.Constraint("DistanceY", 6, 3, 5, 3, 24.0),
    Sketcher.Constraint("DistanceX", 9, 3, 8, 3, 12.0),
    Sketcher.Constraint("DistanceX", 13, 3, 14, 3, 309.0),
    Sketcher.Constraint("DistanceX", 16, 3, 14, 3, 29.0),
    Sketcher.Constraint("DistanceY", 16, 3, 7, 3, 13.0),
    Sketcher.Constraint("DistanceX", 17, 3, 16, 3, 37.0),
    Sketcher.Constraint("DistanceY", 16, 3, 18, 3, 72.0),
    Sketcher.Constraint("DistanceY", -1, 1, 2, 3, 42.15),
])
doc.recompute()
hole = body.newObject("PartDesign::Hole", "Hole")
hole.Profile = sketch6
hole.ThreadType = "None"
hole.Diameter = 3.4
hole.DepthType = "ThroughAll"
hole.HoleCutType = "Countersink"
hole.HoleCutDiameter = 6.3
hole.HoleCutCountersinkAngle = 90
hole.Reversed = True

# Sketch on XY plane
sketch7 = body.newObject("Sketcher::SketchObject", "Sketch006")
sketch7.AttachmentSupport = (doc.getObject("XY_Plane"), [""])
sketch7.MapMode = "FlatFace"
sketch7.AttachmentOffset = App.Placement(App.Vector(0, 0, 127), App.Rotation())
sketch7.addGeometry([
    Part.Circle(App.Vector(166.5, -9, 0), App.Vector(0, 0, 1), 1.7),
    Part.Circle(App.Vector(178.5, -33, 0), App.Vector(0, 0, 1), 1.7),
    Part.Circle(App.Vector(-178.5, -33, 0), App.Vector(0, 0, 1), 1.7),
    Part.Circle(App.Vector(-166.5, -9, 0), App.Vector(0, 0, 1), 1.7),
], False)
sketch7.addConstraint([
    Sketcher.Constraint("Equal", 0, 1),
    Sketcher.Constraint("Equal", 1, 2),
    Sketcher.Constraint("Equal", 2, 3),
    Sketcher.Constraint("Symmetric", 1, 3, 2, 3, -2),
    Sketcher.Constraint("Symmetric", 0, 3, 3, 3, -2),
    Sketcher.Constraint("Diameter", 0, 3.4),
    Sketcher.Constraint("DistanceY", 0, 3, -1, 1, 9.0),
    Sketcher.Constraint("DistanceY", 1, 3, -1, 1, 33.0),
    Sketcher.Constraint("DistanceX", 0, 3, 1, 3, 12.0),
    Sketcher.Constraint("DistanceX", 2, 3, 0, 3, 345.0),
])
doc.recompute()
hole2 = body.newObject("PartDesign::Hole", "Hole001")
hole2.Profile = sketch7
hole2.ThreadType = "None"
hole2.Diameter = 3.4
hole2.DepthType = "Dimension"
hole2.Depth = 10
hole2.DrillPoint = "Angled"
hole2.DrillPointAngle = 118
hole2.HoleCutType = "Countersink"
hole2.HoleCutDiameter = 6.3
hole2.HoleCutCountersinkAngle = 90

# Sketch on XY plane
sketch8 = body.newObject("Sketcher::SketchObject", "Sketch007")
sketch8.AttachmentSupport = (doc.getObject("XY_Plane"), [""])
sketch8.MapMode = "FlatFace"
sketch8.AttachmentOffset = App.Placement(App.Vector(0, 0, -127), App.Rotation())
sketch8.addGeometry([
    Part.Circle(App.Vector(166.5, -9, 0), App.Vector(0, 0, 1), 1.7),
    Part.Circle(App.Vector(-178.5, -33, 0), App.Vector(0, 0, 1), 1.7),
    Part.Circle(App.Vector(-166.5, -9, 0), App.Vector(0, 0, 1), 1.7),
    Part.Circle(App.Vector(178.5, -33, 0), App.Vector(0, 0, 1), 1.7),
], False)
sketch8.addConstraint([
    Sketcher.Constraint("Equal", 0, 1),
    Sketcher.Constraint("Equal", 1, 2),
    Sketcher.Constraint("Equal", 2, 3),
    Sketcher.Constraint("Symmetric", 0, 3, 2, 3, -2),
    Sketcher.Constraint("Symmetric", 1, 3, 3, 3, -2),
    Sketcher.Constraint("Diameter", 0, 3.4),
    Sketcher.Constraint("DistanceY", 0, 3, -1, 1, 9.0),
    Sketcher.Constraint("DistanceY", 1, 3, -1, 1, 33.0),
    Sketcher.Constraint("DistanceX", 1, 3, 0, 3, 345.0),
    Sketcher.Constraint("DistanceX", 1, 3, 2, 3, 12.0),
])
doc.recompute()
hole3 = body.newObject("PartDesign::Hole", "Hole002")
hole3.Profile = sketch8
hole3.ThreadType = "None"
hole3.Diameter = 3.4
hole3.DepthType = "Dimension"
hole3.Depth = 10
hole3.DrillPoint = "Angled"
hole3.DrillPointAngle = 118
hole3.HoleCutType = "Countersink"
hole3.HoleCutDiameter = 6.3
hole3.HoleCutCountersinkAngle = 90
hole3.Reversed = True

doc.recompute()
